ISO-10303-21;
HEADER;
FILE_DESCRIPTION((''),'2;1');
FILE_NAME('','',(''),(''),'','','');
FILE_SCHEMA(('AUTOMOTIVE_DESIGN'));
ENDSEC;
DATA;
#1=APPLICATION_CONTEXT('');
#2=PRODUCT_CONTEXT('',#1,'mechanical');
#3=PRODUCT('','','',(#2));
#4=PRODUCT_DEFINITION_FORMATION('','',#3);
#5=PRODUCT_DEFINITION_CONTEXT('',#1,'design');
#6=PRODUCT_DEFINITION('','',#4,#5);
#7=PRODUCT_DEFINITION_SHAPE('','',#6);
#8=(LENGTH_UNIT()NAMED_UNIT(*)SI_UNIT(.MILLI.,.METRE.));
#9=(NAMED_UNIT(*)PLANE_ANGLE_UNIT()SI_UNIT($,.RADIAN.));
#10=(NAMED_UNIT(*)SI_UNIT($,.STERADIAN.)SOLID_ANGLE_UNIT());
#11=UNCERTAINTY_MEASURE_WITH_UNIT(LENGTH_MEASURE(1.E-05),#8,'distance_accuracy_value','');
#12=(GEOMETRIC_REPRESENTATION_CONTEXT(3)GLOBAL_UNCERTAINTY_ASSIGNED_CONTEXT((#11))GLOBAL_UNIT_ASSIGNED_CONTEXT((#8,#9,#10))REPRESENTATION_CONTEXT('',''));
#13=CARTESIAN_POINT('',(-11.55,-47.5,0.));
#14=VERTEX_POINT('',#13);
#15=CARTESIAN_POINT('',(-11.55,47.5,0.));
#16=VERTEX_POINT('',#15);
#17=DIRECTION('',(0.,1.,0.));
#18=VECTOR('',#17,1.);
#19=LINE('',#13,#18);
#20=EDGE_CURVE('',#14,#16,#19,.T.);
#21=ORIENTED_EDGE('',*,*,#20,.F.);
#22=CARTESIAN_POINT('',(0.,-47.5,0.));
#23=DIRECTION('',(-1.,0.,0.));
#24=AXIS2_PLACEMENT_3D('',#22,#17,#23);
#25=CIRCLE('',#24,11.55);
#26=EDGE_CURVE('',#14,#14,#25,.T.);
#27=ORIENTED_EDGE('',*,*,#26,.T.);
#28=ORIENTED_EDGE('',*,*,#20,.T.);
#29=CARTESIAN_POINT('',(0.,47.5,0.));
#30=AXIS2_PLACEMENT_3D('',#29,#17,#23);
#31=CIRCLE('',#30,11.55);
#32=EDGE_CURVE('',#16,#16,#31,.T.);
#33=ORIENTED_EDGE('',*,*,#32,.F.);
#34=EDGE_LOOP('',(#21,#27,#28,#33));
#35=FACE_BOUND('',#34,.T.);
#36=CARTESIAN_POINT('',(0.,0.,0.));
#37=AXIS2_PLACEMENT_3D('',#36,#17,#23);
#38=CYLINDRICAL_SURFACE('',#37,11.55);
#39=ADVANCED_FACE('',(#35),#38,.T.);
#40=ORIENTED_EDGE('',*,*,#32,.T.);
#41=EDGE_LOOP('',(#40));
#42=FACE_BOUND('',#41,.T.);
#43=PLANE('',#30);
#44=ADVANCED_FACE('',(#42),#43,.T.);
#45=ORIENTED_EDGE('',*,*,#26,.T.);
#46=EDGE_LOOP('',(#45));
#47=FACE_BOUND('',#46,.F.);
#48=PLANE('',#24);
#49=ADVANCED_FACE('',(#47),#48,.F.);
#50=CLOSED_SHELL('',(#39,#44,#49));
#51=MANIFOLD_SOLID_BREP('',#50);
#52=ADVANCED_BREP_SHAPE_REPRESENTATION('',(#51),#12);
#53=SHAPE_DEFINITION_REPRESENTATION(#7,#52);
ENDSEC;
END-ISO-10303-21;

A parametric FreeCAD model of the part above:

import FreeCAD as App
import Part
import Sketcher

V = App.Vector
Q = App.Units.Quantity

doc = App.newDocument("Part")
params = doc.addObject("Spreadsheet::Sheet", "Params")
for row, (alias, value) in enumerate([
    ("sketch1_diameter", "23.1 mm"),
    ("pad1_length", "95 mm"),
], start=1):
    params.set(f"A{row}", alias)
    params.set(f"B{row}", "=" + value)
    params.setAlias(f"B{row}", alias)

body = doc.addObject("PartDesign::Body", "Body")

# Sketch on XZ plane
sketch1 = body.newObject("Sketcher::SketchObject", "Sketch")
sketch1.AttachmentSupport = (doc.getObject("XZ_Plane"), [""])
sketch1.MapMode = "FlatFace"
sketch1.addGeometry(Part.Circle(V(0, 0, 0), V(0, 0, 1), 12), False)
sketch1.addConstraint([
    Sketcher.Constraint("Coincident", 0, 3, -1, 1),
    Sketcher.Constraint("Diameter", 0, Q("23.1 mm")),
])
sketch1.setExpression("Constraints[1]", "Params.sketch1_diameter")
pad1 = body.newObject("PartDesign::Pad", "Pad")
pad1.Profile = sketch1
pad1.setExpression("Length", "Params.pad1_length")
pad1.Midplane = True

doc.recompute()
